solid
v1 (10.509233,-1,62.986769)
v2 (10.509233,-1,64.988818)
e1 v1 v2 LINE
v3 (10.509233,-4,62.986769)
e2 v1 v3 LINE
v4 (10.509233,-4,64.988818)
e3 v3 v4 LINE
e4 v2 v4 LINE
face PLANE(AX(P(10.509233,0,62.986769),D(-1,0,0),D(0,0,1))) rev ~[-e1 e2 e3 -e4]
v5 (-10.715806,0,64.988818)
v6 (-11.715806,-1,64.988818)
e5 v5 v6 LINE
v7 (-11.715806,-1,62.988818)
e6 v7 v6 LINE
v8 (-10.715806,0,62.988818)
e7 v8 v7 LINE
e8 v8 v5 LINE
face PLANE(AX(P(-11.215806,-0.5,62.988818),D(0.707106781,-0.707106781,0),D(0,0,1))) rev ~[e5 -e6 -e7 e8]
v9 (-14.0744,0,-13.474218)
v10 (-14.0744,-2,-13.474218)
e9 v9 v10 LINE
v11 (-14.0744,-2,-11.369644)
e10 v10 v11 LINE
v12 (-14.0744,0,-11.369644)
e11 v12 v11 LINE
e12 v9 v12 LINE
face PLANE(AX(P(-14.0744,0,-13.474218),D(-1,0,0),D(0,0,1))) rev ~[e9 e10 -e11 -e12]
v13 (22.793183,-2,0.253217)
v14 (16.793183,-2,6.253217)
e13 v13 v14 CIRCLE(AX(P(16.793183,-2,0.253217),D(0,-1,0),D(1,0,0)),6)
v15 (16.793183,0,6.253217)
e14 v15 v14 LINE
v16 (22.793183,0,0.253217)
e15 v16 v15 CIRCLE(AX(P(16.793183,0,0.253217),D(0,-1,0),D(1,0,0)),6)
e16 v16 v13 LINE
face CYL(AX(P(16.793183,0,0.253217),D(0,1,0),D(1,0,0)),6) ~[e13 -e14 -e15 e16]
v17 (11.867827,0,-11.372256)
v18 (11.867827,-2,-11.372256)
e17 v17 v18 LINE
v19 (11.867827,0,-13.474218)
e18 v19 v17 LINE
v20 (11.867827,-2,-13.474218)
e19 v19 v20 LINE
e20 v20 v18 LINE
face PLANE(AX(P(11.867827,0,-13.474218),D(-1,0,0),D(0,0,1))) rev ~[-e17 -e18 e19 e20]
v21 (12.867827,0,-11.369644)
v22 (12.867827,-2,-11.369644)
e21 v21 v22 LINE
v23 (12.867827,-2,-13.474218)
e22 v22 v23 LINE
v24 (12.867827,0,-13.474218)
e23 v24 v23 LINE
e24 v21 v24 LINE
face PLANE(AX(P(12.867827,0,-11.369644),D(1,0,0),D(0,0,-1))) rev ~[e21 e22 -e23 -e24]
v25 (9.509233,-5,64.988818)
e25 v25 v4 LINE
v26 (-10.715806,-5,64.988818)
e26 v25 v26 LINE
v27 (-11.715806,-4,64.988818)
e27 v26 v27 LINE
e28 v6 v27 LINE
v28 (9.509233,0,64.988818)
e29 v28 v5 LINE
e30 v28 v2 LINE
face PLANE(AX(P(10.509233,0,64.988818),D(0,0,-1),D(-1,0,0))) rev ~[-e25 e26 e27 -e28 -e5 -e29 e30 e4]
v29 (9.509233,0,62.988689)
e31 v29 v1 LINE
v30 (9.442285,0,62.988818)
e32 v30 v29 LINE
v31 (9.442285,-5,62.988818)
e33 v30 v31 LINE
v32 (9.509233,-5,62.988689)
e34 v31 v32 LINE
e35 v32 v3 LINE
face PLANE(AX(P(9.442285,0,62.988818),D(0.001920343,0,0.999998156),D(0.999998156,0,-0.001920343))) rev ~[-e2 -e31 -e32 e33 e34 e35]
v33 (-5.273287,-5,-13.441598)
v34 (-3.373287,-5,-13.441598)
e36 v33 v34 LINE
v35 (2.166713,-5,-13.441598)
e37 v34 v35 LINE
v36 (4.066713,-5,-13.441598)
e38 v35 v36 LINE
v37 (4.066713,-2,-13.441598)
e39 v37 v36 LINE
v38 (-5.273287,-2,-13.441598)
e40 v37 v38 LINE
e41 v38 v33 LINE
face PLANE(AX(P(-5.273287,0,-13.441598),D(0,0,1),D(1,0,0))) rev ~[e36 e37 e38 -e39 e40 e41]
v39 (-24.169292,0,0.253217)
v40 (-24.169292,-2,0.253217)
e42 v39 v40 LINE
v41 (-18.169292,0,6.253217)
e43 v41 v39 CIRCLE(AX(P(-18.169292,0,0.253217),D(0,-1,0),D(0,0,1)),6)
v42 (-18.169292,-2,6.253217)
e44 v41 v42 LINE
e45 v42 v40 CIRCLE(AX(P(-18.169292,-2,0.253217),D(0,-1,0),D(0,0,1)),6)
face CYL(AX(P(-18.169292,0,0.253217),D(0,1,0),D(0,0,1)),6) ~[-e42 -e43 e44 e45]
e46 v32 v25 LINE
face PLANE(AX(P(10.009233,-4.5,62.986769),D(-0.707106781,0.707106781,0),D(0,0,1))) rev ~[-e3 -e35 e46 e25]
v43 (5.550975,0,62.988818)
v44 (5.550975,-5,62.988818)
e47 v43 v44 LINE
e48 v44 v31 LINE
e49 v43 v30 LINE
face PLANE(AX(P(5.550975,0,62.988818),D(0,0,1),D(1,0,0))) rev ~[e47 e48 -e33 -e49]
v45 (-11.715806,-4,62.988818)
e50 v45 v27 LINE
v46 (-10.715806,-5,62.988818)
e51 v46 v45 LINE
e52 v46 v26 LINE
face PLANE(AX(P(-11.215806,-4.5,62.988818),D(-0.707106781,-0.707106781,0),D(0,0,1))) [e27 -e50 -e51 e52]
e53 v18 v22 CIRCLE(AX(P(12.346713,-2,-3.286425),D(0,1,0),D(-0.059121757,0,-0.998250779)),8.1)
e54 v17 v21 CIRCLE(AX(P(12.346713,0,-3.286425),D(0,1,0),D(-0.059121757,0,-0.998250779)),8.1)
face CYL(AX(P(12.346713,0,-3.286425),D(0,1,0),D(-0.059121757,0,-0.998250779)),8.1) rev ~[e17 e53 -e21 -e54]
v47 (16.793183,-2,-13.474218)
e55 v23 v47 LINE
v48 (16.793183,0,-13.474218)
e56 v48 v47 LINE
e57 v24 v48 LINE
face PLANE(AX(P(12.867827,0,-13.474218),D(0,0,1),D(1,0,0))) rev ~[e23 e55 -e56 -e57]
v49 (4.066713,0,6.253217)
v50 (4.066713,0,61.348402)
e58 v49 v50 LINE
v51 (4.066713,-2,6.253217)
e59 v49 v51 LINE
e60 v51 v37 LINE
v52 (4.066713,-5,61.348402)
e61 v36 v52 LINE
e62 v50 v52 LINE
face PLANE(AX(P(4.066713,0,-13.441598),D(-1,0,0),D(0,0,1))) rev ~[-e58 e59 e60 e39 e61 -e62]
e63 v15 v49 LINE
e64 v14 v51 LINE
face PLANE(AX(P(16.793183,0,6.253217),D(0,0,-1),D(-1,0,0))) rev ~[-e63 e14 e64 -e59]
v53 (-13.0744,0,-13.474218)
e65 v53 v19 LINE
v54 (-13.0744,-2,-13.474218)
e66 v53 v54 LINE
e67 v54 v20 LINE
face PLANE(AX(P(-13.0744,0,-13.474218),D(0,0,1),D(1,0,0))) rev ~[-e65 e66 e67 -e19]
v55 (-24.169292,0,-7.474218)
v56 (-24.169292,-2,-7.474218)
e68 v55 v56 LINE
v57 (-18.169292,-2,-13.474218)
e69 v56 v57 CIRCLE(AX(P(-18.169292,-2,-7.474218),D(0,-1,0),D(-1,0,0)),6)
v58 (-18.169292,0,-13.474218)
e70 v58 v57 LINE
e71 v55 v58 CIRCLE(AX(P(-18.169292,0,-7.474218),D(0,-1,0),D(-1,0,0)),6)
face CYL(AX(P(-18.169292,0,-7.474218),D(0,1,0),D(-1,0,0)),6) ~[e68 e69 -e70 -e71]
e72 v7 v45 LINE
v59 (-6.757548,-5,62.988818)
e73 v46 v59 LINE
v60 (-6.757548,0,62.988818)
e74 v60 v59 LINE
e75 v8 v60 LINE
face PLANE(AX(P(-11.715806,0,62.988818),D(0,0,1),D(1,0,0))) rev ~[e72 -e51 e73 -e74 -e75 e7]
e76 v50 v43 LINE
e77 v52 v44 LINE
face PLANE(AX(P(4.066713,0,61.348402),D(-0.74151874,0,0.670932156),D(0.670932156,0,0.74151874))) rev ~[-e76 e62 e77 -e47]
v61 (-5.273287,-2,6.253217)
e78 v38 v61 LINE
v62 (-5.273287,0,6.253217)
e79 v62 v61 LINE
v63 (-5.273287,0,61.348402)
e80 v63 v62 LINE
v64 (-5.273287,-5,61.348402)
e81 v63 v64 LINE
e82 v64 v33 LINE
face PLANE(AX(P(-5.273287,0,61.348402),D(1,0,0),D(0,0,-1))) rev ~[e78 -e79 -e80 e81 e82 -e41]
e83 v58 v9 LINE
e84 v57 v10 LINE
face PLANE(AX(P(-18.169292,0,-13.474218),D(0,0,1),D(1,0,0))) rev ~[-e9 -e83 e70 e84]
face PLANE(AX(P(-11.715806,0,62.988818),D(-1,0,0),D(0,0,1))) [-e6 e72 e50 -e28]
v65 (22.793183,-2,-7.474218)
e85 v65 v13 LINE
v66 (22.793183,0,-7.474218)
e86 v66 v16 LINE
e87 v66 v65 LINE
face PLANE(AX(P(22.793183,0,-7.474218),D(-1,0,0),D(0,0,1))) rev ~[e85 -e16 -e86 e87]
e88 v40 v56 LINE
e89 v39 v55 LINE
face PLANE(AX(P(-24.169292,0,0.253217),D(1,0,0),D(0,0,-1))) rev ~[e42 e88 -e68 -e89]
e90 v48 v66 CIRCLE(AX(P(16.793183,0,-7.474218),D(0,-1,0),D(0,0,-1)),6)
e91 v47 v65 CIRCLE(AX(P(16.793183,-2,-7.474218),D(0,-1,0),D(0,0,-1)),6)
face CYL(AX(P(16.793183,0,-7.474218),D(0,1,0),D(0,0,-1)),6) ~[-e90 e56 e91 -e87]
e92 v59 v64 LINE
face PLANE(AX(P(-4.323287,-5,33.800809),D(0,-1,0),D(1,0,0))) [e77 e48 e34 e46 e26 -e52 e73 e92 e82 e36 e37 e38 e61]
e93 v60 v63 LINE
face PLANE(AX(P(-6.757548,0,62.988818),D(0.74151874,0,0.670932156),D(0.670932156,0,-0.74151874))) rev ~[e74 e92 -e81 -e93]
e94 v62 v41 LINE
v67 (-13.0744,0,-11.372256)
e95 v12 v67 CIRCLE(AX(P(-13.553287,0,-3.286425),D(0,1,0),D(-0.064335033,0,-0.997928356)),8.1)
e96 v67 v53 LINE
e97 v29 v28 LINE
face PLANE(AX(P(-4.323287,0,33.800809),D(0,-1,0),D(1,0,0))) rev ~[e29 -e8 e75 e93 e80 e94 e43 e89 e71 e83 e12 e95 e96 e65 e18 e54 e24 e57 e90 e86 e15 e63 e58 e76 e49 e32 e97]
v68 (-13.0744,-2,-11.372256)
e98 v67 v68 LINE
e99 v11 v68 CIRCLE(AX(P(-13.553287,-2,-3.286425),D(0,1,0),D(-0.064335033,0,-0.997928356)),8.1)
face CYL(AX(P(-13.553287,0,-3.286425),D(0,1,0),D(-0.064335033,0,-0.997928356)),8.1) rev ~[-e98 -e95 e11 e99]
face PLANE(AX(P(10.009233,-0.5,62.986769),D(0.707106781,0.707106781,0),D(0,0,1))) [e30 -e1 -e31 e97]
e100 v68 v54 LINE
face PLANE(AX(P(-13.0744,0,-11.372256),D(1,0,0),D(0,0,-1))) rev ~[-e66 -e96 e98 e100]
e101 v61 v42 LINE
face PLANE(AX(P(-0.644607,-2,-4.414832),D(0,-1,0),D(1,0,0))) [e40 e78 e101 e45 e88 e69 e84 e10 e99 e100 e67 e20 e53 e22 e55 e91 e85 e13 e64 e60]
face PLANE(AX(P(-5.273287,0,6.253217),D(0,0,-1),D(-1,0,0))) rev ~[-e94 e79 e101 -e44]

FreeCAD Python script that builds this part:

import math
import FreeCAD as App
import Part
import Sketcher
Q = App.Units.Quantity


def edges_at(feature, points):
    """Names of the edges that pass closest to the given points."""
    edges = feature.Shape.Edges
    near = lambda p: min(range(len(edges)), key=lambda i: edges[i].distToShape(Part.Vertex(*p))[0])
    return sorted({f"Edge{near(p) + 1}" for p in points})

doc = App.newDocument("Part")
body = doc.addObject("PartDesign::Body", "Body")

# Sketch on XZ plane
sketch1 = doc.addObject("Sketcher::SketchObject", "Sketch")
body.addObject(sketch1)
sketch1.AttachmentSupport = (doc.XZ_Plane, [""])
sketch1.MapMode = "FlatFace"
sketch1.addGeometry([
    Part.LineSegment(App.Vector(-5.3, 6.3, 0), App.Vector(-18.2, 6.3, 0)),  # 0
    Part.ArcOfCircle(Part.Circle(App.Vector(-18.2, 0.3, 0), App.Vector(0, 0, 1), 6), math.radians(90), math.radians(180)),  # 1
    Part.LineSegment(App.Vector(-24.2, 0.3, 0), App.Vector(-24.2, -7.5, 0)),  # 2
    Part.ArcOfCircle(Part.Circle(App.Vector(-18.2, -7.5, 0), App.Vector(0, 0, 1), 6), math.radians(180), math.radians(270)),  # 3
    Part.LineSegment(App.Vector(-18.2, -13.5, 0), App.Vector(-14.1, -13.5, 0)),  # 4
    Part.LineSegment(App.Vector(-14.1, -13.5, 0), App.Vector(-14.1, -11.4, 0)),  # 5
    Part.ArcOfCircle(Part.Circle(App.Vector(-13.6, -3.3, 0), App.Vector(0, 0, 1), 8.1), math.radians(-87), math.radians(266)),  # 6
    Part.LineSegment(App.Vector(-13.1, -11.4, 0), App.Vector(-13.1, -13.5, 0)),  # 7
    Part.LineSegment(App.Vector(-13.1, -13.5, 0), App.Vector(11.9, -13.5, 0)),  # 8
    Part.LineSegment(App.Vector(11.9, -13.5, 0), App.Vector(11.9, -11.4, 0)),  # 9
    Part.ArcOfCircle(Part.Circle(App.Vector(12.3, -3.3, 0), App.Vector(0, 0, 1), 8.1), math.radians(-86), math.radians(267)),  # 10
    Part.LineSegment(App.Vector(12.9, -11.4, 0), App.Vector(12.9, -13.5, 0)),  # 11
    Part.LineSegment(App.Vector(12.9, -13.5, 0), App.Vector(16.8, -13.5, 0)),  # 12
    Part.ArcOfCircle(Part.Circle(App.Vector(16.8, -7.5, 0), App.Vector(0, 0, 1), 6), math.radians(-90), math.radians(0)),  # 13
    Part.LineSegment(App.Vector(22.8, -7.5, 0), App.Vector(22.8, 0.3, 0)),  # 14
    Part.ArcOfCircle(Part.Circle(App.Vector(16.8, 0.3, 0), App.Vector(0, 0, 1), 6), math.radians(0), math.radians(90)),  # 15
    Part.LineSegment(App.Vector(16.8, 6.3, 0), App.Vector(4.1, 6.3, 0)),  # 16
    Part.LineSegment(App.Vector(4.1, 6.3, 0), App.Vector(4.1, -13.4, 0)),  # 17
    Part.LineSegment(App.Vector(4.1, -13.4, 0), App.Vector(-5.3, -13.4, 0)),  # 18
    Part.LineSegment(App.Vector(-5.3, -13.4, 0), App.Vector(-5.3, 6.3, 0)),  # 19
], False)
sketch1.addConstraint([
    Sketcher.Constraint("Tangent", 0, 2, 1, 1),
    Sketcher.Constraint("Tangent", 1, 2, 2, 1),
    Sketcher.Constraint("Tangent", 2, 2, 3, 1),
    Sketcher.Constraint("Tangent", 3, 2, 4, 1),
    Sketcher.Constraint("Coincident", 4, 2, 5, 1),
    Sketcher.Constraint("Coincident", 5, 2, 6, 2),
    Sketcher.Constraint("Coincident", 6, 1, 7, 1),
    Sketcher.Constraint("Coincident", 7, 2, 8, 1),
    Sketcher.Constraint("Coincident", 8, 2, 9, 1),
    Sketcher.Constraint("Coincident", 9, 2, 10, 2),
    Sketcher.Constraint("Coincident", 10, 1, 11, 1),
    Sketcher.Constraint("Coincident", 11, 2, 12, 1),
    Sketcher.Constraint("Tangent", 12, 2, 13, 1),
    Sketcher.Constraint("Tangent", 13, 2, 14, 1),
    Sketcher.Constraint("Tangent", 14, 2, 15, 1),
    Sketcher.Constraint("Tangent", 15, 2, 16, 1),
    Sketcher.Constraint("Coincident", 16, 2, 17, 1),
    Sketcher.Constraint("Coincident", 17, 2, 18, 1),
    Sketcher.Constraint("Coincident", 18, 2, 19, 1),
    Sketcher.Constraint("Coincident", 19, 2, 0, 1),
    Sketcher.Constraint("Horizontal", 0),
    Sketcher.Constraint("Vertical", 2),
    Sketcher.Constraint("Horizontal", 4),
    Sketcher.Constraint("Vertical", 5),
    Sketcher.Constraint("Vertical", 7),
    Sketcher.Constraint("Horizontal", 8),
    Sketcher.Constraint("Vertical", 9),
    Sketcher.Constraint("Vertical", 11),
    Sketcher.Constraint("Horizontal", 12),
    Sketcher.Constraint("Vertical", 14),
    Sketcher.Constraint("Horizontal", 16),
    Sketcher.Constraint("Vertical", 17),
    Sketcher.Constraint("Horizontal", 18),
    Sketcher.Constraint("Vertical", 19),
    Sketcher.Constraint("Equal", 1, 3),
    Sketcher.Constraint("Equal", 6, 10),
    Sketcher.Constraint("Equal", 3, 13),
    Sketcher.Constraint("Equal", 13, 15),
    Sketcher.Constraint("Horizontal", 6, 3, 10, 3),
    Sketcher.Constraint("Horizontal", 3, 3, 13, 3),
    Sketcher.Constraint("Horizontal", 1, 3, 15, 3),
    Sketcher.Constraint("Horizontal", 4, 2, 7, 2),
    Sketcher.Constraint("Horizontal", 6, 1, 9, 2),
    Sketcher.Constraint("Horizontal", 5, 2, 10, 1),
    Sketcher.Constraint("Radius", 1, Q("6 mm")),
    Sketcher.Constraint("Radius", 6, Q("8.1 mm")),
    Sketcher.Constraint("DistanceX", 5, 2, 6, 1, Q("1 mm")),
    Sketcher.Constraint("DistanceX", 18, 2, 18, 1, Q("9.34 mm")),
    Sketcher.Constraint("DistanceX", 6, 3, 10, 3, Q("25.9 mm")),
    Sketcher.Constraint("DistanceX", 16, 2, 10, 3, Q("8.28 mm")),
    Sketcher.Constraint("DistanceX", 4, 1, 4, 2, Q("4.094892 mm")),
    Sketcher.Constraint("DistanceX", 16, 2, 16, 1, Q("12.72647 mm")),
    Sketcher.Constraint("DistanceY", 7, 2, 7, 1, Q("2.101962 mm")),
    Sketcher.Constraint("DistanceX", 4, 2, -1, 1, Q("14.0744 mm")),
    Sketcher.Constraint("DistanceY", 17, 2, -1, 1, Q("13.441598 mm")),
    Sketcher.Constraint("DistanceX", 0, 2, 0, 1, Q("12.896006 mm")),
    Sketcher.Constraint("DistanceY", 2, 2, 2, 1, Q("7.727434 mm")),
    Sketcher.Constraint("DistanceY", 17, 2, 17, 1, Q("19.694815 mm")),
])
pad1 = doc.addObject("PartDesign::Pad", "Pad")
body.addObject(pad1)
pad1.Profile = sketch1
pad1.Length = 2

# Sketch on XZ plane
sketch2 = doc.addObject("Sketcher::SketchObject", "Sketch001")
body.addObject(sketch2)
sketch2.AttachmentSupport = (doc.XZ_Plane, [""])
sketch2.MapMode = "FlatFace"
sketch2.addGeometry([
    Part.LineSegment(App.Vector(-5.3, 61.3, 0), App.Vector(-5.3, -13.4, 0)),  # 0
    Part.LineSegment(App.Vector(-5.3, -13.4, 0), App.Vector(-3.4, -13.4, 0)),  # 1
    Part.LineSegment(App.Vector(-3.4, -13.4, 0), App.Vector(2.2, -13.4, 0)),  # 2
    Part.LineSegment(App.Vector(2.2, -13.4, 0), App.Vector(4.1, -13.4, 0)),  # 3
    Part.LineSegment(App.Vector(4.1, -13.4, 0), App.Vector(4.1, 61.3, 0)),  # 4
    Part.LineSegment(App.Vector(4.1, 61.3, 0), App.Vector(5.6, 63, 0)),  # 5
    Part.LineSegment(App.Vector(5.6, 63, 0), App.Vector(9.4, 63, 0)),  # 6
    Part.LineSegment(App.Vector(9.4, 63, 0), App.Vector(10.5, 63, 0)),  # 7
    Part.LineSegment(App.Vector(10.5, 63, 0), App.Vector(10.5, 65, 0)),  # 8
    Part.LineSegment(App.Vector(10.5, 65, 0), App.Vector(-11.7, 65, 0)),  # 9
    Part.LineSegment(App.Vector(-11.7, 65, 0), App.Vector(-11.7, 63, 0)),  # 10
    Part.LineSegment(App.Vector(-11.7, 63, 0), App.Vector(-6.8, 63, 0)),  # 11
    Part.LineSegment(App.Vector(-6.8, 63, 0), App.Vector(-5.3, 61.3, 0)),  # 12
], False)
sketch2.addConstraint([
    Sketcher.Constraint("Coincident", 0, 2, 1, 1),
    Sketcher.Constraint("Coincident", 1, 2, 2, 1),
    Sketcher.Constraint("Coincident", 2, 2, 3, 1),
    Sketcher.Constraint("Coincident", 3, 2, 4, 1),
    Sketcher.Constraint("Coincident", 4, 2, 5, 1),
    Sketcher.Constraint("Coincident", 5, 2, 6, 1),
    Sketcher.Constraint("Coincident", 6, 2, 7, 1),
    Sketcher.Constraint("Coincident", 7, 2, 8, 1),
    Sketcher.Constraint("Coincident", 8, 2, 9, 1),
    Sketcher.Constraint("Coincident", 9, 2, 10, 1),
    Sketcher.Constraint("Coincident", 10, 2, 11, 1),
    Sketcher.Constraint("Coincident", 11, 2, 12, 1),
    Sketcher.Constraint("Coincident", 12, 2, 0, 1),
    Sketcher.Constraint("Vertical", 0),
    Sketcher.Constraint("Horizontal", 1),
    Sketcher.Constraint("Horizontal", 2),
    Sketcher.Constraint("Horizontal", 3),
    Sketcher.Constraint("Vertical", 4),
    Sketcher.Constraint("Horizontal", 6),
    Sketcher.Constraint("Vertical", 8),
    Sketcher.Constraint("Horizontal", 9),
    Sketcher.Constraint("Vertical", 10),
    Sketcher.Constraint("Horizontal", 11),
    Sketcher.Constraint("Horizontal", 6, 2, 10, 2),
    Sketcher.Constraint("Horizontal", 4, 2, 12, 2),
    Sketcher.Constraint("Equal", 1, 3),
    Sketcher.Constraint("Equal", 5, 12),
    Sketcher.Constraint("DistanceY", 10, 2, 10, 1, Q("2 mm")),
    Sketcher.Constraint("DistanceX", 1, 1, 1, 2, Q("1.9 mm")),
    Sketcher.Constraint("DistanceX", 2, 1, 2, 2, Q("5.54 mm")),
    Sketcher.Constraint("DistanceY", 0, 2, 0, 1, Q("74.79 mm")),
    Sketcher.Constraint("DistanceX", 6, 1, 6, 2, Q("3.89131 mm")),
    Sketcher.Constraint("DistanceX", 9, 2, 9, 1, Q("22.225039 mm")),
    Sketcher.Constraint("DistanceY", 8, 1, 8, 2, Q("2.002049 mm")),
    Sketcher.Constraint("DistanceY", 0, 2, -1, 1, Q("13.441598 mm")),
    Sketcher.Constraint("Distance", 7, Q("1.06695 mm")),
    Sketcher.Constraint("DistanceX", 11, 1, 11, 2, Q("4.958258 mm")),
    Sketcher.Constraint("DistanceY", -1, 1, 7, 2, Q("62.986769 mm")),
    Sketcher.Constraint("DistanceX", 11, 2, -1, 1, Q("6.757548 mm")),
])
pad2 = doc.addObject("PartDesign::Pad", "Pad001")
body.addObject(pad2)
pad2.Profile = sketch2
pad2.Length = 5
doc.recompute()

chamfer = doc.addObject("PartDesign::Chamfer", "Chamfer")
body.addObject(chamfer)
chamfer.Base = (pad2, edges_at(pad2, [
    (10.509, 0, 63.988),
    (10.509, -5, 63.988),
    (-11.716, -5, 63.989),
    (-11.716, 0, 63.989),
]))
chamfer.Size = 1

doc.recompute()
